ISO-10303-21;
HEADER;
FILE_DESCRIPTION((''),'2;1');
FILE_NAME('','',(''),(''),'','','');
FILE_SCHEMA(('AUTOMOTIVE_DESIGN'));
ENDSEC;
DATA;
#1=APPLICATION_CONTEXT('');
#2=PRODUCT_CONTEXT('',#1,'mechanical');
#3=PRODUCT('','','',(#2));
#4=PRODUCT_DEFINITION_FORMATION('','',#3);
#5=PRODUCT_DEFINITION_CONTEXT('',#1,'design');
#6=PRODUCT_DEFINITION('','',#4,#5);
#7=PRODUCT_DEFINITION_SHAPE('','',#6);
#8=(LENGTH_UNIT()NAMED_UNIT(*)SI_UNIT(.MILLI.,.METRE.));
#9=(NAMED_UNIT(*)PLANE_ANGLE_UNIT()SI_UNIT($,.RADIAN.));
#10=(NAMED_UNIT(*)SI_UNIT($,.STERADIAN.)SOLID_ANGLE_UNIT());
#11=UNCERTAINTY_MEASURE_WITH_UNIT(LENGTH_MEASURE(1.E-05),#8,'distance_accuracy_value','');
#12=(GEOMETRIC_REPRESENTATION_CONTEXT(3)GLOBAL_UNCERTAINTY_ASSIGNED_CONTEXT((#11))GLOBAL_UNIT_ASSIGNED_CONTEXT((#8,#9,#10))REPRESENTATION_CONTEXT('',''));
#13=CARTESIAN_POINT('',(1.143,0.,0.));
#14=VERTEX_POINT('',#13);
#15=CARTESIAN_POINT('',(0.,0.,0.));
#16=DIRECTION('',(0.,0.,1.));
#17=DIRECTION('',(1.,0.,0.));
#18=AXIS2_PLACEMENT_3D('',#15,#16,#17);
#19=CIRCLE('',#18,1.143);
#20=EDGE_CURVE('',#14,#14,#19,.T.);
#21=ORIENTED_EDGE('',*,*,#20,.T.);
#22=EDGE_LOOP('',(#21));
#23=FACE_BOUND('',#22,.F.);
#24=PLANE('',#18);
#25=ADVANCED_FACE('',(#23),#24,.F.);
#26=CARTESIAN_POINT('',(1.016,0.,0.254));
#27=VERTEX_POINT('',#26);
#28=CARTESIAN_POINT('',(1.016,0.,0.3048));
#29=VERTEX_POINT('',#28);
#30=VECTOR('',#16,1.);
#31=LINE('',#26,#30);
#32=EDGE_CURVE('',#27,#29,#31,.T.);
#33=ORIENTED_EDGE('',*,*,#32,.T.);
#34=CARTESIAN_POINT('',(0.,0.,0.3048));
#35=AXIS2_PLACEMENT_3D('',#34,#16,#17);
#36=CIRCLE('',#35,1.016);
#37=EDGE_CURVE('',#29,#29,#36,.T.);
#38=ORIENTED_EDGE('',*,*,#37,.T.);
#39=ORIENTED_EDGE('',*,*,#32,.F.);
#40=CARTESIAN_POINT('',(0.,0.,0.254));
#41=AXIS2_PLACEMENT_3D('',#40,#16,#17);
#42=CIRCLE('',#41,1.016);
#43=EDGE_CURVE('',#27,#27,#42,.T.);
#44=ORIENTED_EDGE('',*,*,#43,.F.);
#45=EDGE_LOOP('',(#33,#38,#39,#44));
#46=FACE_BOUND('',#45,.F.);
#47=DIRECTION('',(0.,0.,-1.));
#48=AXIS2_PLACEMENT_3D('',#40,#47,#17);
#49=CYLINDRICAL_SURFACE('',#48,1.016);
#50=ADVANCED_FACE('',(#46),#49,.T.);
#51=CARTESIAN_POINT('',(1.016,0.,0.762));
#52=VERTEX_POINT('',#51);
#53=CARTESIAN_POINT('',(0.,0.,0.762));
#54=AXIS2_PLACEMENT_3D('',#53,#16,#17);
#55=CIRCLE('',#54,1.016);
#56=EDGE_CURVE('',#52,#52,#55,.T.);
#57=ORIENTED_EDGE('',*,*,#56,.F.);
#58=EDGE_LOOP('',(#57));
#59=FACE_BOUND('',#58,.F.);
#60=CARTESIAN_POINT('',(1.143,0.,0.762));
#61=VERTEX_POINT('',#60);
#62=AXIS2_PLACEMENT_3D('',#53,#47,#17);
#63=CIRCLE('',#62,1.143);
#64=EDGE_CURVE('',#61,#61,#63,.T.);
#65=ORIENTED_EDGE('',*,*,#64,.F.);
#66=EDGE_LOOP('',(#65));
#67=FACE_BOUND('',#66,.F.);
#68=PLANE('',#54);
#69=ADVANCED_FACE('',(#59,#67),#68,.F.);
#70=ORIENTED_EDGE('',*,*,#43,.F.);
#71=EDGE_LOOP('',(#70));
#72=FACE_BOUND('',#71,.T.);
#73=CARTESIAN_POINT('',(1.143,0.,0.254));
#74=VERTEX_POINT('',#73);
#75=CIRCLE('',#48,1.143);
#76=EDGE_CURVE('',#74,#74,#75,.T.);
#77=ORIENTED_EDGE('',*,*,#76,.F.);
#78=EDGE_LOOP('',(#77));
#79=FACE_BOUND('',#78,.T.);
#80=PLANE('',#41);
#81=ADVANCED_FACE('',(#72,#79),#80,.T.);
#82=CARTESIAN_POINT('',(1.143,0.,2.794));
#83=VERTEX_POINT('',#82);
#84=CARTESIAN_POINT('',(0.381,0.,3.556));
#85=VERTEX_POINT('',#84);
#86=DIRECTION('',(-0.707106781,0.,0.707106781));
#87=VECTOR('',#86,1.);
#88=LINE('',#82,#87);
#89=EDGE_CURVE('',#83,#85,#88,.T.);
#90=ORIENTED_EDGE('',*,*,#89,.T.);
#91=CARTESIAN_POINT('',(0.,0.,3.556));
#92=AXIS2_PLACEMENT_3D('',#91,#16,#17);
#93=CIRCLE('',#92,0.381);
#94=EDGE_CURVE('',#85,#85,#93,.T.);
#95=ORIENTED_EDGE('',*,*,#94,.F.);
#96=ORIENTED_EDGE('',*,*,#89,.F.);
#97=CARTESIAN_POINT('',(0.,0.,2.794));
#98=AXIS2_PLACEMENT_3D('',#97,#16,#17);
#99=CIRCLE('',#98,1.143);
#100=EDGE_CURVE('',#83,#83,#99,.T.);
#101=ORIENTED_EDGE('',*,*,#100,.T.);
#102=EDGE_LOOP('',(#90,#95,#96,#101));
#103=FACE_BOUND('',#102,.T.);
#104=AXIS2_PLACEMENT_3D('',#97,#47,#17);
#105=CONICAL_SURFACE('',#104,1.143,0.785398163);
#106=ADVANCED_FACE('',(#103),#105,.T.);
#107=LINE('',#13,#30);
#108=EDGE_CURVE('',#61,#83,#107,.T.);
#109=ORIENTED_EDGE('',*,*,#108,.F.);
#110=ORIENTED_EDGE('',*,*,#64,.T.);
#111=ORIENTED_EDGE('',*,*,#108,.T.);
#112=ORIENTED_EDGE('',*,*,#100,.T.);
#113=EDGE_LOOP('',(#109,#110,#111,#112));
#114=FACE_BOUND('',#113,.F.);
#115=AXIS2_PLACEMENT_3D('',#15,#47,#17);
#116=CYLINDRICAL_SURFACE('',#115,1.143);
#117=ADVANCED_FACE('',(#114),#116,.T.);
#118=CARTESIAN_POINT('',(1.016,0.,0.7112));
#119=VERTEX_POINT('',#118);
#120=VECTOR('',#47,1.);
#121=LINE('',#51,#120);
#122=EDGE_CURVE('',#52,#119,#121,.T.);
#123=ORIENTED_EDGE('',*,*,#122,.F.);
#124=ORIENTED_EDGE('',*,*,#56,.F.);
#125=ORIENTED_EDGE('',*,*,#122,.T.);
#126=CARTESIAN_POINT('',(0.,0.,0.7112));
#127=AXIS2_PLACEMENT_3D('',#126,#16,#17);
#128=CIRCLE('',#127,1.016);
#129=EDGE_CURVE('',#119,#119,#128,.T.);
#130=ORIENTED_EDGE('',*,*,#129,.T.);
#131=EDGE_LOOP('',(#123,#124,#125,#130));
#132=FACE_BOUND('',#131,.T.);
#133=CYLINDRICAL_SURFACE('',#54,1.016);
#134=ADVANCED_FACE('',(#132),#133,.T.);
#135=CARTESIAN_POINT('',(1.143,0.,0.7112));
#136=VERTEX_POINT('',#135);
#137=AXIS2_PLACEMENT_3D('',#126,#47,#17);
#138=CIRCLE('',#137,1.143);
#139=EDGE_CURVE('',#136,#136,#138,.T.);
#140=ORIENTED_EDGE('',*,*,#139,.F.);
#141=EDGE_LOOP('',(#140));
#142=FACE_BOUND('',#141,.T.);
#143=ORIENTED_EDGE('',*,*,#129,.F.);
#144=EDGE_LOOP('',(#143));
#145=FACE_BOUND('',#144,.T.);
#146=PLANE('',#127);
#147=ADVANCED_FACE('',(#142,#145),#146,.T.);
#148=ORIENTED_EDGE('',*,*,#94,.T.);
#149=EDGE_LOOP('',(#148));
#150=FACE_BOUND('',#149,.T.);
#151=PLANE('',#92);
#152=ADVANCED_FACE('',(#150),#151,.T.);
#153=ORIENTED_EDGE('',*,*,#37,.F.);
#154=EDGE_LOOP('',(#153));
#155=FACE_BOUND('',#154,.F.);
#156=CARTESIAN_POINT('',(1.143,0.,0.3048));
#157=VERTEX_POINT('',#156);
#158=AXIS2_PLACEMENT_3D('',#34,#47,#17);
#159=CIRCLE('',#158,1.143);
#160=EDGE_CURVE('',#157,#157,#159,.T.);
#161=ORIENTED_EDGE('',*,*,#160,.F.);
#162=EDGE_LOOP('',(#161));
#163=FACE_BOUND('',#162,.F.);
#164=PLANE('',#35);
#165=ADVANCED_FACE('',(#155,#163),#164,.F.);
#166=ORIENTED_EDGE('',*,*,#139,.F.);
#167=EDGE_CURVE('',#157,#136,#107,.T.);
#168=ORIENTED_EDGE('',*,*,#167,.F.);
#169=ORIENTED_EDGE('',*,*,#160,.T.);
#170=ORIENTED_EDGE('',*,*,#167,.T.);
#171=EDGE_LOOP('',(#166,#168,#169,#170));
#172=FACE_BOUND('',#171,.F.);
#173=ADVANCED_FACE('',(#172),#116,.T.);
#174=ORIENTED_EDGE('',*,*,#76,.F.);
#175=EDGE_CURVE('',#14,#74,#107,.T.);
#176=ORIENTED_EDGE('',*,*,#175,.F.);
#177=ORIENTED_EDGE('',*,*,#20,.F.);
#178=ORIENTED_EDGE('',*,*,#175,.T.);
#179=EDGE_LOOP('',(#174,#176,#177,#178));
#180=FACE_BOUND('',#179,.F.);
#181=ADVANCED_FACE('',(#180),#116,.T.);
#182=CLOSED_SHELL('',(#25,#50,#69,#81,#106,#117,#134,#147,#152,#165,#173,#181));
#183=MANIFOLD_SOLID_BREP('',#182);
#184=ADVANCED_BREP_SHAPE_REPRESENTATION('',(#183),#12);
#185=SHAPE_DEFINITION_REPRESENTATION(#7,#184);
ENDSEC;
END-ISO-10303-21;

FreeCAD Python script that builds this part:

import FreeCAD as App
import Part
import Sketcher
Q = App.Units.Quantity


def edges_at(feature, points):
    """Names of the edges that pass closest to the given points."""
    edges = feature.Shape.Edges
    near = lambda p: min(range(len(edges)), key=lambda i: edges[i].distToShape(Part.Vertex(*p))[0])
    return sorted({f"Edge{near(p) + 1}" for p in points})

doc = App.newDocument("Part")
body = doc.addObject("PartDesign::Body", "Body")

# Sketch on XY plane
sketch1 = body.newObject("Sketcher::SketchObject", "Sketch")
sketch1.AttachmentSupport = (doc.getObject("XY_Plane"), [""])
sketch1.MapMode = "FlatFace"
sketch1.addGeometry(Part.Circle(App.Vector(0, 0, 0), App.Vector(0, 0, 1), 1.143), False)
sketch1.addConstraint(Sketcher.Constraint("Coincident", 0, 3, -1, 1))
sketch1.addConstraint(Sketcher.Constraint("Diameter", 0, Q("0.09 in")))
pad1 = body.newObject("PartDesign::Pad", "Pad")
pad1.Profile = sketch1
pad1.Length = Q("0.14 in")

# Sketch on XY plane
sketch2 = body.newObject("Sketcher::SketchObject", "Sketch001")
sketch2.AttachmentSupport = (doc.getObject("XY_Plane"), [""])
sketch2.MapMode = "FlatFace"
sketch2.AttachmentOffset = App.Placement(App.Vector(0, 0, 0.01 * 25.4), App.Rotation())
sketch2.addGeometry(Part.Circle(App.Vector(0, 0, 0), App.Vector(0, 0, 1), 1.1557), False)
sketch2.addGeometry(Part.Circle(App.Vector(0, 0, 0), App.Vector(0, 0, 1), 1.016), False)
sketch2.addConstraint(Sketcher.Constraint("Coincident", 0, 3, -1, 1))
sketch2.addConstraint(Sketcher.Constraint("Coincident", 1, 3, -1, 1))
sketch2.addConstraint(Sketcher.Constraint("Diameter", 1, Q("0.08 in")))
sketch2.addConstraint(Sketcher.Constraint("Diameter", 0, Q("0.091 in")))
pocket1 = body.newObject("PartDesign::Pocket", "Pocket")
pocket1.Profile = sketch2
pocket1.Length = Q("0.002 in")
pocket1.Reversed = True

# Sketch on XY plane
sketch3 = body.newObject("Sketcher::SketchObject", "Sketch002")
sketch3.AttachmentSupport = (doc.getObject("XY_Plane"), [""])
sketch3.MapMode = "FlatFace"
sketch3.AttachmentOffset = App.Placement(App.Vector(0, 0, 0.03 * 25.4), App.Rotation())
sketch3.addGeometry(Part.Circle(App.Vector(0, 0, 0), App.Vector(0, 0, 1), 1.1557), False)
sketch3.addGeometry(Part.Circle(App.Vector(0, 0, 0), App.Vector(0, 0, 1), 1.016), False)
sketch3.addConstraint(Sketcher.Constraint("Coincident", 0, 3, -1, 1))
sketch3.addConstraint(Sketcher.Constraint("Coincident", 1, 3, -1, 1))
sketch3.addConstraint(Sketcher.Constraint("Diameter", 1, Q("0.08 in")))
sketch3.addConstraint(Sketcher.Constraint("Diameter", 0, Q("0.091 in")))
pocket2 = body.newObject("PartDesign::Pocket", "Pocket001")
pocket2.Profile = sketch3
pocket2.Length = Q("0.002 in")
doc.recompute()

chamfer = body.newObject("PartDesign::Chamfer", "Chamfer")
chamfer.Base = (pocket2, edges_at(pocket2, [(-1.143, 0, 3.556)]))
chamfer.Size = Q("0.03 in")

doc.recompute()
